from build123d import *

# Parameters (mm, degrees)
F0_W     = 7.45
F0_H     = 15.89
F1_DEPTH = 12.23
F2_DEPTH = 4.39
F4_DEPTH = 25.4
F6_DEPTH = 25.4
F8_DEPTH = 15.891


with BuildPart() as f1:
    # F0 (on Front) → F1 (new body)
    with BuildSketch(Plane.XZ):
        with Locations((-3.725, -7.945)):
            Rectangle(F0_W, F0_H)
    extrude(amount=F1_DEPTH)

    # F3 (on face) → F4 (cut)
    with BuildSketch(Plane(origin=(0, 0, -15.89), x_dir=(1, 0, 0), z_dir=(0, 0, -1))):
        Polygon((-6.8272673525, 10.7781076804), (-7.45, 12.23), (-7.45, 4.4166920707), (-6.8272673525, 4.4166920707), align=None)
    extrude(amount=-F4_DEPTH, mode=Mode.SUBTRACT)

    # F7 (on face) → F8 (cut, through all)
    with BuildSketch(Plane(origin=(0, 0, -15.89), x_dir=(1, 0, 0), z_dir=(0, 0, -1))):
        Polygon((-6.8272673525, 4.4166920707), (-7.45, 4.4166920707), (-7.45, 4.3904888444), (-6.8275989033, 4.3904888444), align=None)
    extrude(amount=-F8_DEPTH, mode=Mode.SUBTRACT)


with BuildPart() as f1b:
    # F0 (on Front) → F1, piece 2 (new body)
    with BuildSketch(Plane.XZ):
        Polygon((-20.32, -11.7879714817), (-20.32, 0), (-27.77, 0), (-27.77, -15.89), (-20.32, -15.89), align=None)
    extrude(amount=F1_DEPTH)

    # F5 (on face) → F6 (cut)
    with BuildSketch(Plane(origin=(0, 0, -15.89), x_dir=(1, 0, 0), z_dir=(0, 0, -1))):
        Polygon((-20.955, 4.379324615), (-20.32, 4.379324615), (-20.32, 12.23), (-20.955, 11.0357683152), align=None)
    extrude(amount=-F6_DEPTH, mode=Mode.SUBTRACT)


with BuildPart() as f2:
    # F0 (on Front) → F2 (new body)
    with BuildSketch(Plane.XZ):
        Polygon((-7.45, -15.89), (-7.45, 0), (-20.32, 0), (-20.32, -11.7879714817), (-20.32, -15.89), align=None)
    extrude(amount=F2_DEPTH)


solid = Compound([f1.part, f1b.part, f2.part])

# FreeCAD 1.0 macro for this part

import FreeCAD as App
import Part
import Sketcher
from FreeCAD import Vector
Q = App.Units.Quantity


def add_polygon(sketch, points):
    """Adds a closed chain of lines whose ends are joined by coincident constraints."""
    first, n = sketch.GeometryCount, len(points)
    for a, b in zip(points, points[1:] + points[:1]):
        sketch.addGeometry(Part.LineSegment(App.Vector(*a, 0), App.Vector(*b, 0)), False)
    for i in range(n):
        sketch.addConstraint(Sketcher.Constraint("Coincident", first + i, 2, first + (i + 1) % n, 1))

doc = App.newDocument("Part")
body = doc.addObject("PartDesign::Body", "Body")

# Sketch on XZ plane
sketch1 = doc.addObject("Sketcher::SketchObject", "Sketch")
body.addObject(sketch1)
sketch1.AttachmentSupport = (doc.XZ_Plane, [""])
sketch1.MapMode = "FlatFace"
add_polygon(sketch1, [(-7.45, 0), (-7.45, -15.89), (0, -15.89), (0, 0)])  # lines 0-3
sketch1.addConstraint([
    Sketcher.Constraint("Vertical", 0),
    Sketcher.Constraint("Horizontal", 1),
    Sketcher.Constraint("Vertical", 2),
    Sketcher.Constraint("Horizontal", 3),
    Sketcher.Constraint("Coincident", 2, 2, -1, 1),
    Sketcher.Constraint("DistanceX", 1, 1, 1, 2, 7.45),
    Sketcher.Constraint("DistanceY", 0, 2, 0, 1, 15.89),
])
pad1 = doc.addObject("PartDesign::Pad", "Pad")
body.addObject(pad1)
pad1.Profile = sketch1
pad1.Length = 12.23

# Sketch on XY plane
sketch2 = doc.addObject("Sketcher::SketchObject", "Sketch001")
body.addObject(sketch2)
sketch2.AttachmentSupport = (doc.XY_Plane, [""])
sketch2.MapMode = "FlatFace"
sketch2.AttachmentOffset = App.Placement(Vector(0, 0, -15.89), App.Rotation())
add_polygon(sketch2, [(-6.827267, -10.778108), (-7.45, -12.23), (-7.45, -4.416692), (-6.827267, -4.416692)])  # lines 0-3
sketch2.addConstraint([
    Sketcher.Constraint("Vertical", 1),
    Sketcher.Constraint("Horizontal", 2),
    Sketcher.Constraint("Vertical", 3),
    Sketcher.Constraint("DistanceX", 0, 2, -1, 1, 7.45),
    Sketcher.Constraint("DistanceY", 0, 2, -1, 1, 12.23),
    Sketcher.Constraint("DistanceX", 2, 1, 2, 2, 0.622733),
    Sketcher.Constraint("DistanceY", 1, 1, 1, 2, 7.813308),
    Sketcher.Constraint("DistanceY", 3, 2, 3, 1, 6.361416),
])
pocket1 = doc.addObject("PartDesign::Pocket", "Pocket")
body.addObject(pocket1)
pocket1.Profile = sketch2
pocket1.Length = Q("1 in")
pocket1.Reversed = True

# Sketch on XY plane
sketch3 = doc.addObject("Sketcher::SketchObject", "Sketch002")
body.addObject(sketch3)
sketch3.AttachmentSupport = (doc.XY_Plane, [""])
sketch3.MapMode = "FlatFace"
sketch3.AttachmentOffset = App.Placement(Vector(0, 0, -15.89), App.Rotation())
add_polygon(sketch3, [(-6.827267, -4.416692), (-7.45, -4.416692), (-7.45, -4.390489), (-6.827599, -4.390489)])  # lines 0-3
sketch3.addConstraint([
    Sketcher.Constraint("Horizontal", 0),
    Sketcher.Constraint("Vertical", 1),
    Sketcher.Constraint("Horizontal", 2),
    Sketcher.Constraint("DistanceX", 2, 1, 2, 2, 0.622401),
    Sketcher.Constraint("DistanceX", 0, 2, -1, 1, 7.45),
    Sketcher.Constraint("DistanceX", 0, 2, 0, 1, 0.622733),
    Sketcher.Constraint("DistanceY", 1, 1, 1, 2, 0.026203),
    Sketcher.Constraint("DistanceY", 1, 2, -1, 1, 4.390489),
])
pocket2 = doc.addObject("PartDesign::Pocket", "Pocket001")
body.addObject(pocket2)
pocket2.Profile = sketch3
pocket2.Type = "ThroughAll"
pocket2.Reversed = True
body2 = doc.addObject("PartDesign::Body", "Body001")

# Sketch on XZ plane
sketch4 = doc.addObject("Sketcher::SketchObject", "Sketch003")
body2.addObject(sketch4)
sketch4.AttachmentSupport = (doc.getObject("XZ_Plane001"), [""])
sketch4.MapMode = "FlatFace"
add_polygon(sketch4, [(-20.32, 0), (-27.77, 0), (-27.77, -15.89), (-20.32, -15.89)])  # lines 0-3
sketch4.addConstraint([
    Sketcher.Constraint("Horizontal", 0),
    Sketcher.Constraint("Vertical", 1),
    Sketcher.Constraint("Horizontal", 2),
    Sketcher.Constraint("Vertical", 3),
    Sketcher.Constraint("PointOnObject", 0, 2, -1),
    Sketcher.Constraint("DistanceX", 2, 2, -1, 1, Q("0.8 in")),
    Sketcher.Constraint("DistanceX", 0, 2, 0, 1, 7.45),
    Sketcher.Constraint("DistanceY", 1, 2, 1, 1, 15.89),
])
pad2 = doc.addObject("PartDesign::Pad", "Pad001")
body2.addObject(pad2)
pad2.Profile = sketch4
pad2.Length = 12.23

# Sketch on XY plane
sketch5 = doc.addObject("Sketcher::SketchObject", "Sketch004")
body2.addObject(sketch5)
sketch5.AttachmentSupport = (doc.getObject("XY_Plane001"), [""])
sketch5.MapMode = "FlatFace"
sketch5.AttachmentOffset = App.Placement(Vector(0, 0, -15.89), App.Rotation())
add_polygon(sketch5, [(-20.955, -4.379325), (-20.32, -4.379325), (-20.32, -12.23), (-20.955, -11.035768)])  # lines 0-3
sketch5.addConstraint([
    Sketcher.Constraint("Horizontal", 0),
    Sketcher.Constraint("Vertical", 1),
    Sketcher.Constraint("Vertical", 3),
    Sketcher.Constraint("DistanceX", 0, 2, -1, 1, Q("0.8 in")),
    Sketcher.Constraint("DistanceX", 0, 1, 0, 2, Q("0.025 in")),
    Sketcher.Constraint("DistanceY", 1, 2, -1, 1, 12.23),
    Sketcher.Constraint("Distance", 2, 1.352558),
    Sketcher.Constraint("DistanceY", 1, 2, 1, 1, 7.850675),
])
pocket3 = doc.addObject("PartDesign::Pocket", "Pocket002")
body2.addObject(pocket3)
pocket3.Profile = sketch5
pocket3.Length = Q("1 in")
pocket3.Reversed = True
body3 = doc.addObject("PartDesign::Body", "Body002")

# Sketch on XZ plane
sketch6 = doc.addObject("Sketcher::SketchObject", "Sketch005")
body3.addObject(sketch6)
sketch6.AttachmentSupport = (doc.getObject("XZ_Plane002"), [""])
sketch6.MapMode = "FlatFace"
add_polygon(sketch6, [(-7.45, -15.89), (-7.45, 0), (-20.32, 0), (-20.32, -15.89)])  # lines 0-3
sketch6.addConstraint([
    Sketcher.Constraint("Vertical", 0),
    Sketcher.Constraint("Horizontal", 1),
    Sketcher.Constraint("Vertical", 2),
    Sketcher.Constraint("Horizontal", 3),
    Sketcher.Constraint("PointOnObject", 0, 2, -1),
    Sketcher.Constraint("DistanceX", 1, 2, -1, 1, Q("0.8 in")),
    Sketcher.Constraint("DistanceX", 1, 2, 1, 1, 12.87),
    Sketcher.Constraint("DistanceY", 0, 1, 0, 2, 15.89),
])
pad3 = doc.addObject("PartDesign::Pad", "Pad002")
body3.addObject(pad3)
pad3.Profile = sketch6
pad3.Length = 4.39

doc.recompute()
